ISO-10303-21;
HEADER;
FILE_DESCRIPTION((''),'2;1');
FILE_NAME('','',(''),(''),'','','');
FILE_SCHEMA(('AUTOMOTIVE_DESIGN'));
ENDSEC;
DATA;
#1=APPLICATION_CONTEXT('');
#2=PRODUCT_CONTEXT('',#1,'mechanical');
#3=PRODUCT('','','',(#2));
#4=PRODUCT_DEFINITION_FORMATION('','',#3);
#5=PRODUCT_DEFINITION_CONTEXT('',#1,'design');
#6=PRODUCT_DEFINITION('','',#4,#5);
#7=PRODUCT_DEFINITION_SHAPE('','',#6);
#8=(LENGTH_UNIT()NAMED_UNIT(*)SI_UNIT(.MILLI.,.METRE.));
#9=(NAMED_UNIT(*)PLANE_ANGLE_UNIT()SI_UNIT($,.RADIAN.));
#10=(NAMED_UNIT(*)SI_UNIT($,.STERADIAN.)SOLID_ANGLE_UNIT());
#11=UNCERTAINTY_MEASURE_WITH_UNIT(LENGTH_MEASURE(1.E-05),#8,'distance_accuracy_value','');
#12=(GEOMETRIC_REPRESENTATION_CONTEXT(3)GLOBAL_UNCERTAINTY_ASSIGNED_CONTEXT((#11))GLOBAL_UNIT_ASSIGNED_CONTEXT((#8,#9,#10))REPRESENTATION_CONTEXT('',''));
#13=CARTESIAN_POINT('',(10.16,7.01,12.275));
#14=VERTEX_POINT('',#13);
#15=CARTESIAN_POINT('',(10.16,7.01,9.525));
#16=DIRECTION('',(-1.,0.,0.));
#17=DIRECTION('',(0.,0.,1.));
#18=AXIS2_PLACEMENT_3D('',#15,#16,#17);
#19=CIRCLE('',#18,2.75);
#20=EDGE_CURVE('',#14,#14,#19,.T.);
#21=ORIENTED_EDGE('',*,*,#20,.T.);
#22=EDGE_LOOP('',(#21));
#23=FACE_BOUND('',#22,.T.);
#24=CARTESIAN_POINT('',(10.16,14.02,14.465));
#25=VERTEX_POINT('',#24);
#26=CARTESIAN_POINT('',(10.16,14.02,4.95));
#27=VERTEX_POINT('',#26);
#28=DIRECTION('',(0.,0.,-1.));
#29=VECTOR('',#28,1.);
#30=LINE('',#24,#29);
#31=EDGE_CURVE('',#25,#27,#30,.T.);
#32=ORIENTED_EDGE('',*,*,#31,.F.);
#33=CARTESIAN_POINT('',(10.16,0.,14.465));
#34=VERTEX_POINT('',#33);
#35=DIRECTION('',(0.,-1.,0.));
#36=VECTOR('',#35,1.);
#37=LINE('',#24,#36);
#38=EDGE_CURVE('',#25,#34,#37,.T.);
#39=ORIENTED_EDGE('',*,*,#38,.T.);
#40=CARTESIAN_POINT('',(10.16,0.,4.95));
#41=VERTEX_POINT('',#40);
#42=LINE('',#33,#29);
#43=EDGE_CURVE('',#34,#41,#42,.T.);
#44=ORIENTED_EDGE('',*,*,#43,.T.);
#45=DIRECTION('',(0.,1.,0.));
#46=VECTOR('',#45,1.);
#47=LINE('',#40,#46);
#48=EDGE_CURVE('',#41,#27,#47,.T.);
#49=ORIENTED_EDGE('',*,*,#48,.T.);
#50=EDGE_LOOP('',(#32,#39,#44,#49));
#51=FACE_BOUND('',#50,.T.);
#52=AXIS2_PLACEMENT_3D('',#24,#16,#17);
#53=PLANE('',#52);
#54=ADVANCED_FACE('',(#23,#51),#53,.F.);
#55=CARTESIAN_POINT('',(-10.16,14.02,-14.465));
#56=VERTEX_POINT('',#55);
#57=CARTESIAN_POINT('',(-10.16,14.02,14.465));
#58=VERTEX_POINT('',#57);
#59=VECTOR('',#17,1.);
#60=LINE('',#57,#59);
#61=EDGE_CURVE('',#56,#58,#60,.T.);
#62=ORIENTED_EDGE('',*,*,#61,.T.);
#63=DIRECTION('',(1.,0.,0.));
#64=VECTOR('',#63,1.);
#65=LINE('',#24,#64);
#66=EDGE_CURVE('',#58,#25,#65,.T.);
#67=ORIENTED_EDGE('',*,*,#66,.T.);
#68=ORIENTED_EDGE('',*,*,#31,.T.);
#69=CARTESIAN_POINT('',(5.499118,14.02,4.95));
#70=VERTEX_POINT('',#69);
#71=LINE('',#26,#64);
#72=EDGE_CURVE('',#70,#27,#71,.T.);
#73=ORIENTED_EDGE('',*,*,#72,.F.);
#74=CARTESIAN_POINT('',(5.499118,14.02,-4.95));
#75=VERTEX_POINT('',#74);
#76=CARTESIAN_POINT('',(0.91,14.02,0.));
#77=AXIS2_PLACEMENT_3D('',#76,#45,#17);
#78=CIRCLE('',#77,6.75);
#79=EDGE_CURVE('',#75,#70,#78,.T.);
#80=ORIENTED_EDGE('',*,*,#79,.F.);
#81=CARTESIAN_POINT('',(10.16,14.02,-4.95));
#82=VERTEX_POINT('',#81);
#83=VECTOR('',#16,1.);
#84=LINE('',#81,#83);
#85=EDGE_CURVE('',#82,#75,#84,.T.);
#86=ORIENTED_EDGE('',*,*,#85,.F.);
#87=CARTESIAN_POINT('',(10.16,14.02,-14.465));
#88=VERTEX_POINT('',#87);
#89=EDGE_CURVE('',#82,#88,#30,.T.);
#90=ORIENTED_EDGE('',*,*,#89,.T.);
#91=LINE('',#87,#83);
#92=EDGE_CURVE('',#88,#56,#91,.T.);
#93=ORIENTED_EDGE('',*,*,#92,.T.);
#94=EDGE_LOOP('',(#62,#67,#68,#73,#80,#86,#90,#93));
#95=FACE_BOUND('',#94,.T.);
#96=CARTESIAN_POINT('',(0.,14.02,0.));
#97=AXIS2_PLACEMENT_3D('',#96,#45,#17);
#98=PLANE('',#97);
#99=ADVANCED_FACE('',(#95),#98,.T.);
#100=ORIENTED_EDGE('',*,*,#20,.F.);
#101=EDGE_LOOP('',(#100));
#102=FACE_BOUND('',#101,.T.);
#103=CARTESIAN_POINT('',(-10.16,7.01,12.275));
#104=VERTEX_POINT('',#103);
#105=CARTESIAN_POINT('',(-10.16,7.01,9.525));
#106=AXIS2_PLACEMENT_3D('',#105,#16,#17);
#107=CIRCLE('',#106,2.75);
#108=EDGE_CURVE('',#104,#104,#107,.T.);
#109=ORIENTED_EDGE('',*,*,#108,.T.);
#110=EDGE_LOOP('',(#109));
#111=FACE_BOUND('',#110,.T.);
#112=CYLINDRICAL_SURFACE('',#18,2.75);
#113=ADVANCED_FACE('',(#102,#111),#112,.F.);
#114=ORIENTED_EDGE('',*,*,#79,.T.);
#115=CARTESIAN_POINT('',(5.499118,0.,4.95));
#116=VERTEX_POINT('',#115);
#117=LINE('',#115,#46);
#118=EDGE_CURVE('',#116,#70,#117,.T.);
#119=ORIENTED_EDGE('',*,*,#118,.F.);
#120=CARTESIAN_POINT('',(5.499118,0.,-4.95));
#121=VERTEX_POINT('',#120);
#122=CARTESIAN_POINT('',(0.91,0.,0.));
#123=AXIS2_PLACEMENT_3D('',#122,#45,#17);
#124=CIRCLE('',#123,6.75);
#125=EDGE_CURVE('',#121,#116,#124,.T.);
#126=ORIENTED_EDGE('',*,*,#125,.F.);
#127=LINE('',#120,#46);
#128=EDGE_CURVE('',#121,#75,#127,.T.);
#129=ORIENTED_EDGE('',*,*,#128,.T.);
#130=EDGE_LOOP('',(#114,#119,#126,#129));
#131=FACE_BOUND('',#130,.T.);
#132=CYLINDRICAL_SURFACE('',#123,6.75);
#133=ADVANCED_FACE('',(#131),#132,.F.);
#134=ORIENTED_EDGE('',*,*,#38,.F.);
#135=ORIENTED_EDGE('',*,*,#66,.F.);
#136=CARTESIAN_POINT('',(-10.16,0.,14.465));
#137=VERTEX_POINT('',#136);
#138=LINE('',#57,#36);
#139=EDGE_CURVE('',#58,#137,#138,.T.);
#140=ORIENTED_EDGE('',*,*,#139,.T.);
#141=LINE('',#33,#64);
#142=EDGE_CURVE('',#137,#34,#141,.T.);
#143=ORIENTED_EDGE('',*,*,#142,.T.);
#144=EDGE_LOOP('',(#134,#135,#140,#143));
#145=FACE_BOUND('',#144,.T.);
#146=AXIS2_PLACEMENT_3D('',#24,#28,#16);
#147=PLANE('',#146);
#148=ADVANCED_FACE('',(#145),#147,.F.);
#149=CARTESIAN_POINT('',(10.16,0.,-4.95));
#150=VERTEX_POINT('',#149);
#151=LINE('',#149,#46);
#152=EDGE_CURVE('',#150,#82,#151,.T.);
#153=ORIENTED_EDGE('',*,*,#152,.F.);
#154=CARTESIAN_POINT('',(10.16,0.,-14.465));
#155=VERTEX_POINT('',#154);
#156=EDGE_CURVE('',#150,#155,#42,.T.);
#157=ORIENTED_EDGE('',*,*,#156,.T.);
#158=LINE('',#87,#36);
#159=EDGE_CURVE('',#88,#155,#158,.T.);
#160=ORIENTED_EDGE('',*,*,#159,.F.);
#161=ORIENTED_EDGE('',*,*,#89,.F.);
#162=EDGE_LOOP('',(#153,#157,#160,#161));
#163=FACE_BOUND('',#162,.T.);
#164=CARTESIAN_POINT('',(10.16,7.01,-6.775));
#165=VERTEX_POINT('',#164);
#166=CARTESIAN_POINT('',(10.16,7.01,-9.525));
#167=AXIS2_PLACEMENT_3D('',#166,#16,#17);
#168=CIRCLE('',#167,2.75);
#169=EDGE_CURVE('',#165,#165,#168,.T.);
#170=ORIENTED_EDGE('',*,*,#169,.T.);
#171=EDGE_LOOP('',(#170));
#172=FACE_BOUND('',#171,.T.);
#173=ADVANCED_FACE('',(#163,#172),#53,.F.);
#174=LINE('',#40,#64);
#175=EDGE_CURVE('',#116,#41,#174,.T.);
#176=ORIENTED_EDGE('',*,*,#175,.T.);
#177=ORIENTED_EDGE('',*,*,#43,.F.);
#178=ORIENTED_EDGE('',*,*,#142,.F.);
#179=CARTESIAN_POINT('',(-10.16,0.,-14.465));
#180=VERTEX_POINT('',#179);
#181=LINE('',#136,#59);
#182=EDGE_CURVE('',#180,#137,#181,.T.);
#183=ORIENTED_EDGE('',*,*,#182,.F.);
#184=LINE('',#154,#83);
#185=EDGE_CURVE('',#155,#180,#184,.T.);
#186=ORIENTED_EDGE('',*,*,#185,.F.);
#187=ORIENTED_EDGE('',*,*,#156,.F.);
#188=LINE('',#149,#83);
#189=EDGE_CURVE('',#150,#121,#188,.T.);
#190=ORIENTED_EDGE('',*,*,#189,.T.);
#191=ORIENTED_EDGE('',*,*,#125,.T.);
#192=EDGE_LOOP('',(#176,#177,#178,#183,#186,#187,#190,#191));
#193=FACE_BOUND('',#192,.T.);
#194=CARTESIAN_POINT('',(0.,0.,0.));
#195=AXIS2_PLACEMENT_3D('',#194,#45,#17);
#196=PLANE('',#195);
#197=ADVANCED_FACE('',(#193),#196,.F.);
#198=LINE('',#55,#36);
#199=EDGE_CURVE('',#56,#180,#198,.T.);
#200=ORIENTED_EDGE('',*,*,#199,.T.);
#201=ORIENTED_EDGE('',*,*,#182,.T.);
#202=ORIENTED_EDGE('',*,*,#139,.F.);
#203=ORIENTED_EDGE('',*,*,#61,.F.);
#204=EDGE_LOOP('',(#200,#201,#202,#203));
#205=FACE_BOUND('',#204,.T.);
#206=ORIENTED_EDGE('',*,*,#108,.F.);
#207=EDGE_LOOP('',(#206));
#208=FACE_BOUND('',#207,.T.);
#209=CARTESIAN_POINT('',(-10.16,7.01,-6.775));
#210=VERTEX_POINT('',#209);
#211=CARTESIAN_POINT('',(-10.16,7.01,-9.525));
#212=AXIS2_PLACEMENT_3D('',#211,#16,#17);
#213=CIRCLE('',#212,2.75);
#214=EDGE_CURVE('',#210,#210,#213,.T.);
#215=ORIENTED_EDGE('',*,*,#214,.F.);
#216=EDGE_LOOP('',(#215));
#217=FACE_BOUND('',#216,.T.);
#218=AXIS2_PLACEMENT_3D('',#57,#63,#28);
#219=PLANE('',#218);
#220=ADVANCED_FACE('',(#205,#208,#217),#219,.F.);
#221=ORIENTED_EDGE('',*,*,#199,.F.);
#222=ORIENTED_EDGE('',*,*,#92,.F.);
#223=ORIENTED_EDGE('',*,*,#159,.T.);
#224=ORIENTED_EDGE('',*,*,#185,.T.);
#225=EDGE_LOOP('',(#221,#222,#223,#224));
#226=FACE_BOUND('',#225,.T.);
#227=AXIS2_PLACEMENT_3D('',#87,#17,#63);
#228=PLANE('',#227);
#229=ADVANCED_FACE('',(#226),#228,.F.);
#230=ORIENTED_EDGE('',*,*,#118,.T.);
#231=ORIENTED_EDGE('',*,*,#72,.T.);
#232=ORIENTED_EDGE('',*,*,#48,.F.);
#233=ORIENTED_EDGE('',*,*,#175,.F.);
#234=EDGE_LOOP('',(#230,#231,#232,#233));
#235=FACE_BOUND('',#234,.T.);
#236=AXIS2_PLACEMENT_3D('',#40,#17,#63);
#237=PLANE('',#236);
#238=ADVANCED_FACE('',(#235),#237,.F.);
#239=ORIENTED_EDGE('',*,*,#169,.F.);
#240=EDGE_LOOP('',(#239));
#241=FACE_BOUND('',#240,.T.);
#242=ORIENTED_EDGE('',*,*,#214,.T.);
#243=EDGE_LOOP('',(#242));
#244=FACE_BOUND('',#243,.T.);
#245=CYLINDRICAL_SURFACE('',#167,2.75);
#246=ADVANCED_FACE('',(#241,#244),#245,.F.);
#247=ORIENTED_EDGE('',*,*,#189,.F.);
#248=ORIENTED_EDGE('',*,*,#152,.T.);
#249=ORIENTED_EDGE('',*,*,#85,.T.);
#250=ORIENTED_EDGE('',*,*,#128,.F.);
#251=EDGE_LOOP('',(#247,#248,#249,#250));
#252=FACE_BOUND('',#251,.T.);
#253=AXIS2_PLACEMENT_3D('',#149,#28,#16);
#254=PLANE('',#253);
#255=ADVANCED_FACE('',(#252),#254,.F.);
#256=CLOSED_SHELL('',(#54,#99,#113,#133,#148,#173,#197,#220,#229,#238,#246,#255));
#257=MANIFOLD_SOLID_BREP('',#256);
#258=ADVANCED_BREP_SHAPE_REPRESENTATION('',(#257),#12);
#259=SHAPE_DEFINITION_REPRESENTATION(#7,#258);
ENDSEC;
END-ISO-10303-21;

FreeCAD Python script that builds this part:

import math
import FreeCAD as App
import Part
import Sketcher

V = App.Vector
Q = App.Units.Quantity


def add_polygon(sketch, points):
    """Adds a closed chain of lines whose ends are joined by coincident constraints."""
    first, n = sketch.GeometryCount, len(points)
    for a, b in zip(points, points[1:] + points[:1]):
        sketch.addGeometry(Part.LineSegment(App.Vector(*a, 0), App.Vector(*b, 0)), False)
    for i in range(n):
        sketch.addConstraint(Sketcher.Constraint("Coincident", first + i, 2, first + (i + 1) % n, 1))

doc = App.newDocument("Part")
body = doc.addObject("PartDesign::Body", "Body")

sketch1 = body.newObject("Sketcher::SketchObject", "Sketch")
sketch1.AttachmentSupport = (doc.getObject("XZ_Plane"), [""])
sketch1.MapMode = "FlatFace"
add_polygon(sketch1, [(-10, -14), (-10, 14), (10, 14), (10, -14)])
sketch1.addConstraint(Sketcher.Constraint("Vertical", 0))
sketch1.addConstraint(Sketcher.Constraint("Horizontal", 1))
sketch1.addConstraint(Sketcher.Constraint("Vertical", 2))
sketch1.addConstraint(Sketcher.Constraint("Horizontal", 3))
sketch1.addConstraint(Sketcher.Constraint("Symmetric", 0, 2, 2, 2, -1, 1))
sketch1.addConstraint(Sketcher.Constraint("DistanceX", 1, 1, 1, 2, Q("20.32 mm")))
sketch1.addConstraint(Sketcher.Constraint("DistanceY", 0, 1, 0, 2, Q("28.93 mm")))
pad1 = body.newObject("PartDesign::Pad", "Pad")
pad1.Profile = sketch1
pad1.Length = 14.02
pad1.Reversed = True

sketch2 = body.newObject("Sketcher::SketchObject", "Sketch001")
sketch2.AttachmentSupport = (doc.getObject("XZ_Plane"), [""])
sketch2.MapMode = "FlatFace"
sketch2.AttachmentOffset = App.Placement(V(0, 0, -14.02), App.Rotation())
sketch2.addGeometry(Part.LineSegment(V(5.5, 5, 0), V(10.2, 5, 0)), False)
sketch2.addGeometry(Part.LineSegment(V(10.2, 5, 0), V(10.2, -5, 0)), False)
sketch2.addGeometry(Part.LineSegment(V(10.2, -5, 0), V(5.5, -5, 0)), False)
sketch2.addGeometry(Part.ArcOfCircle(Part.Circle(V(0.9, 0, 0), V(0, 0, 1), 6.8), math.radians(47), math.radians(313)), False)
sketch2.addConstraint(Sketcher.Constraint("Coincident", 0, 2, 1, 1))
sketch2.addConstraint(Sketcher.Constraint("Coincident", 1, 2, 2, 1))
sketch2.addConstraint(Sketcher.Constraint("Coincident", 2, 2, 3, 2))
sketch2.addConstraint(Sketcher.Constraint("Coincident", 3, 1, 0, 1))
sketch2.addConstraint(Sketcher.Constraint("Horizontal", 0))
sketch2.addConstraint(Sketcher.Constraint("Vertical", 1))
sketch2.addConstraint(Sketcher.Constraint("Horizontal", 2))
sketch2.addConstraint(Sketcher.Constraint("Symmetric", 2, 2, 3, 1, -1))
sketch2.addConstraint(Sketcher.Constraint("Radius", 3, Q("6.75 mm")))
sketch2.addConstraint(Sketcher.Constraint("DistanceY", 1, 2, 1, 1, Q("9.9 mm")))
sketch2.addConstraint(Sketcher.Constraint("DistanceX", -1, 1, 3, 3, Q("0.91 mm")))
sketch2.addConstraint(Sketcher.Constraint("DistanceX", -1, 1, 0, 2, Q("10.16 mm")))
pocket1 = body.newObject("PartDesign::Pocket", "Pocket")
pocket1.Profile = sketch2
pocket1.Type = "ThroughAll"
pocket1.Reversed = True

sketch3 = body.newObject("Sketcher::SketchObject", "Sketch002")
sketch3.AttachmentSupport = (doc.getObject("YZ_Plane"), [""])
sketch3.MapMode = "FlatFace"
sketch3.AttachmentOffset = App.Placement(V(0, 0, -10.16), App.Rotation())
sketch3.addGeometry(Part.Circle(V(7, 9.5, 0), V(0, 0, 1), 2.8), False)
sketch3.addGeometry(Part.Circle(V(7, -9.5, 0), V(0, 0, 1), 2.8), False)
sketch3.addConstraint(Sketcher.Constraint("Equal", 0, 1))
sketch3.addConstraint(Sketcher.Constraint("Symmetric", 0, 3, 1, 3, -1))
sketch3.addConstraint(Sketcher.Constraint("Diameter", 0, Q("5.5 mm")))
sketch3.addConstraint(Sketcher.Constraint("DistanceX", -1, 1, 0, 3, Q("7.01 mm")))
sketch3.addConstraint(Sketcher.Constraint("DistanceY", 1, 3, 0, 3, Q("19.05 mm")))
pocket2 = body.newObject("PartDesign::Pocket", "Pocket001")
pocket2.Profile = sketch3
pocket2.Type = "ThroughAll"
pocket2.Reversed = True

doc.recompute()
